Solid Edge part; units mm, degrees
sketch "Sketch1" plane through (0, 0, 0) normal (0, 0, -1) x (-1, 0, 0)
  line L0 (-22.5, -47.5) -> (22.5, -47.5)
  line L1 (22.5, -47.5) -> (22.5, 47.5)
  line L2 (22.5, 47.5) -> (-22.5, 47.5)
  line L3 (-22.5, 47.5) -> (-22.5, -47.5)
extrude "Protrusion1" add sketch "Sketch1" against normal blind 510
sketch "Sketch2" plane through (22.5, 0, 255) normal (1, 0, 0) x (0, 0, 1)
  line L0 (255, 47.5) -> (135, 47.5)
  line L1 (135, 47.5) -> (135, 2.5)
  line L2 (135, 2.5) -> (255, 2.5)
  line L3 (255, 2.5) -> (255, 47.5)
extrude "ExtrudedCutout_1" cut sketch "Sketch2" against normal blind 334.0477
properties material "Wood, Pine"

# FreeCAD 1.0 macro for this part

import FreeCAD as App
import Part
import Sketcher

V = App.Vector


def add_polygon(sketch, points):
    """Adds a closed chain of lines whose ends are joined by coincident constraints."""
    first, n = sketch.GeometryCount, len(points)
    for a, b in zip(points, points[1:] + points[:1]):
        sketch.addGeometry(Part.LineSegment(App.Vector(*a, 0), App.Vector(*b, 0)), False)
    for i in range(n):
        sketch.addConstraint(Sketcher.Constraint("Coincident", first + i, 2, first + (i + 1) % n, 1))

doc = App.newDocument("Part")
body = doc.addObject("PartDesign::Body", "Body")

sketch1 = body.newObject("Sketcher::SketchObject", "Sketch")
sketch1.AttachmentSupport = (doc.getObject("XY_Plane"), [""])
sketch1.MapMode = "FlatFace"
add_polygon(sketch1, [(22.5, 47.5), (22.5, -47.5), (-22.5, -47.5), (-22.5, 47.5)])
sketch1.addConstraint([
    Sketcher.Constraint("Vertical", 0),
    Sketcher.Constraint("Horizontal", 1),
    Sketcher.Constraint("Vertical", 2),
    Sketcher.Constraint("Horizontal", 3),
    Sketcher.Constraint("Symmetric", 0, 2, 2, 2, -1, 1),
    Sketcher.Constraint("DistanceX", 1, 2, 1, 1, 45.0),
    Sketcher.Constraint("DistanceY", 0, 2, 0, 1, 95.0),
])
pad1 = body.newObject("PartDesign::Pad", "Pad")
pad1.Profile = sketch1
pad1.Length = 510

sketch2 = body.newObject("Sketcher::SketchObject", "Sketch001")
sketch2.AttachmentSupport = (doc.getObject("YZ_Plane"), [""])
sketch2.MapMode = "FlatFace"
sketch2.AttachmentOffset = App.Placement(V(0, 0, 22.5), App.Rotation())
add_polygon(sketch2, [(-2.5, 510), (-47.5, 510), (-47.5, 390), (-2.5, 390)])
sketch2.addConstraint([
    Sketcher.Constraint("Horizontal", 0),
    Sketcher.Constraint("Vertical", 1),
    Sketcher.Constraint("Horizontal", 2),
    Sketcher.Constraint("Vertical", 3),
    Sketcher.Constraint("DistanceX", 0, 2, 0, 1, 45.0),
    Sketcher.Constraint("DistanceY", 1, 2, 1, 1, 120.0),
    Sketcher.Constraint("DistanceY", -1, 1, 0, 2, 510.0),
    Sketcher.Constraint("DistanceX", 0, 2, -1, 1, 47.5),
])
pocket1 = body.newObject("PartDesign::Pocket", "Pocket")
pocket1.Profile = sketch2
pocket1.Length = 334.0477

doc.recompute()
